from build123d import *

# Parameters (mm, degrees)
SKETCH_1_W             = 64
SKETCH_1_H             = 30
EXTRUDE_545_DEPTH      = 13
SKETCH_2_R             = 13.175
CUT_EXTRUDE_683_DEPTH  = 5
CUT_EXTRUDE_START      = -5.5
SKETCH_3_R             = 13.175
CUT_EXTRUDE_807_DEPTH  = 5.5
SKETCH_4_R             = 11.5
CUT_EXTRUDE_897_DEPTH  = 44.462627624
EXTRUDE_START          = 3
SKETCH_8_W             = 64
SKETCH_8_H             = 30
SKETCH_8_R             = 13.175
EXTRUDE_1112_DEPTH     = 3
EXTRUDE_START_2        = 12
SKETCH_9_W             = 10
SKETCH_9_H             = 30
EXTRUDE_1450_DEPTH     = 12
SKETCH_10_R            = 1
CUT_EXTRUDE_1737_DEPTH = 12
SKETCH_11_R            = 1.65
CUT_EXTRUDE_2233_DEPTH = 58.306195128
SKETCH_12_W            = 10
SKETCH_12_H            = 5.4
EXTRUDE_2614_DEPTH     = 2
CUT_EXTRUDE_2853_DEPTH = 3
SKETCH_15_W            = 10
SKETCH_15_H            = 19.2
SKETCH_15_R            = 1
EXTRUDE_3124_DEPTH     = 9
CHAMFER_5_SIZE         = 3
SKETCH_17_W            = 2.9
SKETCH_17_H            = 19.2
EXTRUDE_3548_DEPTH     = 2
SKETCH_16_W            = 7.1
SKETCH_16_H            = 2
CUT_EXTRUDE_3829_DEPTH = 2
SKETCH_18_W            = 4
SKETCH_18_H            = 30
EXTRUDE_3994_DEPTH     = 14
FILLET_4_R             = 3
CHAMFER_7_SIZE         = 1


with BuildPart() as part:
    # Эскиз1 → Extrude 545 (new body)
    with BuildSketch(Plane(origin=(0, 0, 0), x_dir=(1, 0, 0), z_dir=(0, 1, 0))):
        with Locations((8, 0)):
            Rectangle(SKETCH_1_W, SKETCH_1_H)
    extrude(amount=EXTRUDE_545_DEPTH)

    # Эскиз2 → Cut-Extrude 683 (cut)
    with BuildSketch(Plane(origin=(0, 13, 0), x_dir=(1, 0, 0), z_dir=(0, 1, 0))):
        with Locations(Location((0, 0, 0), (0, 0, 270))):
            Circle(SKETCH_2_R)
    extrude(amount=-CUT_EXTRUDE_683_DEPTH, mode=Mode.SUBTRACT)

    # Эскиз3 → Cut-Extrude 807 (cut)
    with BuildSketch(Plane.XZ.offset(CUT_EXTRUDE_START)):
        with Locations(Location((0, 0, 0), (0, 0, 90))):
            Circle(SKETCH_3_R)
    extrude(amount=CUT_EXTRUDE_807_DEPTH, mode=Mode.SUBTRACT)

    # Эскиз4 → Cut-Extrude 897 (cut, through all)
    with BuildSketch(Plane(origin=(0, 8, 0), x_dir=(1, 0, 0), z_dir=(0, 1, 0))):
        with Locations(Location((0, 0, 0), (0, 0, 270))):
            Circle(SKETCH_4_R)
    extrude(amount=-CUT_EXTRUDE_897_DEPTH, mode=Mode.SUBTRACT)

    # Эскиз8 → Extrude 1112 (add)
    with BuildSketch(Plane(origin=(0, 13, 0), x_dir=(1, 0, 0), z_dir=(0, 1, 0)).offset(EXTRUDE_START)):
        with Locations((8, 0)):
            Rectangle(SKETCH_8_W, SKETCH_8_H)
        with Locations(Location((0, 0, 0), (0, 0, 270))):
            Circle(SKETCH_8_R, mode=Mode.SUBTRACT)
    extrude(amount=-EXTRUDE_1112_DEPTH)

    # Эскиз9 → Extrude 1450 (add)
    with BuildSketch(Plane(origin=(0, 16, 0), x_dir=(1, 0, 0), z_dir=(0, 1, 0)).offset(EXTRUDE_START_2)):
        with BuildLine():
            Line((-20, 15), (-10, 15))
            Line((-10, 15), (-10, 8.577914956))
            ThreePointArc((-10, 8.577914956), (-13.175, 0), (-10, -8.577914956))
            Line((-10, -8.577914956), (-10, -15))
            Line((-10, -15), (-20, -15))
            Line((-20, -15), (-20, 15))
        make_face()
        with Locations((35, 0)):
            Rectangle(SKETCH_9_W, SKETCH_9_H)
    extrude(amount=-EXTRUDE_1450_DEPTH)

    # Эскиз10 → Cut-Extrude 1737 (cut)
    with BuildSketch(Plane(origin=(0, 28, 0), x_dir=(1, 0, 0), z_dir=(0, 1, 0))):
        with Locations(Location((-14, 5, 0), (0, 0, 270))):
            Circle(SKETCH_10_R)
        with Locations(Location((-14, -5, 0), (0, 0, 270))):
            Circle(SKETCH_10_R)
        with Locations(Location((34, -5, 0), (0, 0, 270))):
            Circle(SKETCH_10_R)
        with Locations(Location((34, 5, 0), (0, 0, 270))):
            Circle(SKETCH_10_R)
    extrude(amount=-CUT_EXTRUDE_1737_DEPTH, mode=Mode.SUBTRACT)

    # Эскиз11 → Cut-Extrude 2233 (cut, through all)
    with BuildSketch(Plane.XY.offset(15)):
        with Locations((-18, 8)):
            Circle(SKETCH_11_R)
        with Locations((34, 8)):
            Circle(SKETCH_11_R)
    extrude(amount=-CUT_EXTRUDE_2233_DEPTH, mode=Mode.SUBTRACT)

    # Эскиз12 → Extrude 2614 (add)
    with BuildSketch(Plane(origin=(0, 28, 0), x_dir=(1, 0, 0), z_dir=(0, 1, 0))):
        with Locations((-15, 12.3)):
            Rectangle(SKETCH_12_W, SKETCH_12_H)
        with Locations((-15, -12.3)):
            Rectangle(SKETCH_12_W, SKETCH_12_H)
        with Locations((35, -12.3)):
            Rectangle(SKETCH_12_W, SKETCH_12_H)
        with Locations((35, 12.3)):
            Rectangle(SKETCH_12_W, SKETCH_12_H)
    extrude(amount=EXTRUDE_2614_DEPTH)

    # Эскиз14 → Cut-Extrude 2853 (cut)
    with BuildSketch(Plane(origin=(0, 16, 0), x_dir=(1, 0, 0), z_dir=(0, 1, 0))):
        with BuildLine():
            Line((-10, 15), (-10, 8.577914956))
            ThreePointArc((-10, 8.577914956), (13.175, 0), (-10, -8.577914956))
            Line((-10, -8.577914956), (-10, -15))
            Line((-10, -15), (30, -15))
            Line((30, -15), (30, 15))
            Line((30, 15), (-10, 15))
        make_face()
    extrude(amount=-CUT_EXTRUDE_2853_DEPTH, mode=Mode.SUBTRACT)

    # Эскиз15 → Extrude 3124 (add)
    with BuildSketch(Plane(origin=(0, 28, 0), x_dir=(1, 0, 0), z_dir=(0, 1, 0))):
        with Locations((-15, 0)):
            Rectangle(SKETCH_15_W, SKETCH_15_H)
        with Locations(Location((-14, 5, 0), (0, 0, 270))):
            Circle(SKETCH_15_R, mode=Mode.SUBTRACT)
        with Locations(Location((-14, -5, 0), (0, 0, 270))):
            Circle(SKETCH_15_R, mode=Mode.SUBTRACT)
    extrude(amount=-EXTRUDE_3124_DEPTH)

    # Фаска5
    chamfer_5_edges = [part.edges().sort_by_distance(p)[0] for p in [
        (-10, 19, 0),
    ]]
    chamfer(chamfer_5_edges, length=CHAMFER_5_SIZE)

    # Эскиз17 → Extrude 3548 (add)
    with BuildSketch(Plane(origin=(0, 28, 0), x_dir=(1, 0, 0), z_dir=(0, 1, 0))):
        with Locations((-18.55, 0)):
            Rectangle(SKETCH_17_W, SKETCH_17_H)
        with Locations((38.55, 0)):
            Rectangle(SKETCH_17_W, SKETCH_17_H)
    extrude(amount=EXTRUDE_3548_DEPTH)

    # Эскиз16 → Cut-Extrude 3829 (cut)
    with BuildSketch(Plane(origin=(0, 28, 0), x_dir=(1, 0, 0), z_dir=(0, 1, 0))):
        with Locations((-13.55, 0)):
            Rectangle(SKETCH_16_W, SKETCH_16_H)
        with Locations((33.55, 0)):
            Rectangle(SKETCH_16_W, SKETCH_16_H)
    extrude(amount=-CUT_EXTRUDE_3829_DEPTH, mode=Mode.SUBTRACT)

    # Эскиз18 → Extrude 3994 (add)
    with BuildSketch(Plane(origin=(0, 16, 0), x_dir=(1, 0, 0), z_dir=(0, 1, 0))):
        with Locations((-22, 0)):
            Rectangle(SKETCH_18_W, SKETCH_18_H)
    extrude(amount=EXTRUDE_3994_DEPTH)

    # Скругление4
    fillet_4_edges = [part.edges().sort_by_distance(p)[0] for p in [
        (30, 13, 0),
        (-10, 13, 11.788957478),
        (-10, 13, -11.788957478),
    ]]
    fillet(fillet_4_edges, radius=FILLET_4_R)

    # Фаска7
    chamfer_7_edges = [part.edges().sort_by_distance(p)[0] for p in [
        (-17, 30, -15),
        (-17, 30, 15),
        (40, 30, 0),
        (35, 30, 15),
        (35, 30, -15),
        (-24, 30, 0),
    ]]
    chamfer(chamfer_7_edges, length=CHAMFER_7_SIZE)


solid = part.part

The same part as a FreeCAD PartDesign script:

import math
import FreeCAD as App
import Part
import Sketcher
from FreeCAD import Vector


def edges_at(feature, points):
    """Names of the edges that pass closest to the given points."""
    edges = feature.Shape.Edges
    near = lambda p: min(range(len(edges)), key=lambda i: edges[i].distToShape(Part.Vertex(*p))[0])
    return sorted({f"Edge{near(p) + 1}" for p in points})


def add_polygon(sketch, points):
    """Adds a closed chain of lines whose ends are joined by coincident constraints."""
    first, n = sketch.GeometryCount, len(points)
    for a, b in zip(points, points[1:] + points[:1]):
        sketch.addGeometry(Part.LineSegment(App.Vector(*a, 0), App.Vector(*b, 0)), False)
    for i in range(n):
        sketch.addConstraint(Sketcher.Constraint("Coincident", first + i, 2, first + (i + 1) % n, 1))

doc = App.newDocument("Part")
body = doc.addObject("PartDesign::Body", "Body")

# Sketch on XZ plane
sketch1 = body.newObject("Sketcher::SketchObject", "Sketch")
sketch1.AttachmentSupport = (doc.getObject("XZ_Plane"), [""])
sketch1.MapMode = "FlatFace"
add_polygon(sketch1, [(-24, -15), (-24, 15), (40, 15), (40, -15)])  # lines 0-3
sketch1.addConstraint([
    Sketcher.Constraint("Vertical", 0),
    Sketcher.Constraint("Horizontal", 1),
    Sketcher.Constraint("Vertical", 2),
    Sketcher.Constraint("Horizontal", 3),
    Sketcher.Constraint("DistanceX", 1, 1, 1, 2, 64.0),
    Sketcher.Constraint("DistanceY", 0, 1, 0, 2, 30.0),
    Sketcher.Constraint("DistanceX", 0, 2, -1, 1, 24.0),
    Sketcher.Constraint("DistanceY", -1, 1, 0, 2, 15.0),
])
pad1 = body.newObject("PartDesign::Pad", "Pad")
pad1.Profile = sketch1
pad1.Length = 13
pad1.Reversed = True

# Sketch on XZ plane
sketch2 = body.newObject("Sketcher::SketchObject", "Sketch001")
sketch2.AttachmentSupport = (doc.getObject("XZ_Plane"), [""])
sketch2.MapMode = "FlatFace"
sketch2.AttachmentOffset = App.Placement(Vector(0, 0, -13), App.Rotation())
sketch2.addGeometry(Part.Circle(Vector(0, 0, 0), Vector(0, 0, 1), 13.175), False)
sketch2.addConstraint([
    Sketcher.Constraint("Coincident", 0, 3, -1, 1),
    Sketcher.Constraint("Diameter", 0, 26.35),
])
pocket1 = body.newObject("PartDesign::Pocket", "Pocket")
pocket1.Profile = sketch2
pocket1.Length = 5
pocket1.Reversed = True

# Sketch on XZ plane
sketch3 = body.newObject("Sketcher::SketchObject", "Sketch002")
sketch3.AttachmentSupport = (doc.getObject("XZ_Plane"), [""])
sketch3.MapMode = "FlatFace"
sketch3.AttachmentOffset = App.Placement(Vector(0, 0, -5.5), App.Rotation())
sketch3.addGeometry(Part.Circle(Vector(0, 0, 0), Vector(0, 0, 1), 13.175), False)
sketch3.addConstraint([
    Sketcher.Constraint("Coincident", 0, 3, -1, 1),
    Sketcher.Constraint("Diameter", 0, 26.35),
])
pocket2 = body.newObject("PartDesign::Pocket", "Pocket001")
pocket2.Profile = sketch3
pocket2.Length = 5.5
pocket2.Reversed = True

# Sketch on XZ plane
sketch4 = body.newObject("Sketcher::SketchObject", "Sketch003")
sketch4.AttachmentSupport = (doc.getObject("XZ_Plane"), [""])
sketch4.MapMode = "FlatFace"
sketch4.AttachmentOffset = App.Placement(Vector(0, 0, -8), App.Rotation())
sketch4.addGeometry(Part.Circle(Vector(0, 0, 0), Vector(0, 0, 1), 11.5), False)
sketch4.addConstraint([
    Sketcher.Constraint("Coincident", 0, 3, -1, 1),
    Sketcher.Constraint("Diameter", 0, 23.0),
])
pocket3 = body.newObject("PartDesign::Pocket", "Pocket002")
pocket3.Profile = sketch4
pocket3.Type = "ThroughAll"
pocket3.Reversed = True

# Sketch on XZ plane
sketch5 = body.newObject("Sketcher::SketchObject", "Sketch004")
sketch5.AttachmentSupport = (doc.getObject("XZ_Plane"), [""])
sketch5.MapMode = "FlatFace"
sketch5.AttachmentOffset = App.Placement(Vector(0, 0, -16), App.Rotation())
add_polygon(sketch5, [(-24, -15), (-24, 15), (40, 15), (40, -15)])  # lines 0-3
sketch5.addGeometry(Part.Circle(Vector(0, 0, 0), Vector(0, 0, 1), 13.175), False)  # 4
sketch5.addConstraint([
    Sketcher.Constraint("Vertical", 0),
    Sketcher.Constraint("Horizontal", 1),
    Sketcher.Constraint("Vertical", 2),
    Sketcher.Constraint("Horizontal", 3),
    Sketcher.Constraint("Coincident", 4, 3, -1, 1),
    Sketcher.Constraint("Diameter", 4, 26.35),
    Sketcher.Constraint("DistanceX", 1, 1, 1, 2, 64.0),
    Sketcher.Constraint("DistanceY", 0, 1, 0, 2, 30.0),
    Sketcher.Constraint("DistanceX", 0, 2, -1, 1, 24.0),
    Sketcher.Constraint("DistanceY", -1, 1, 0, 2, 15.0),
])
pad2 = body.newObject("PartDesign::Pad", "Pad001")
pad2.Profile = sketch5
pad2.Length = 3

# Sketch on XZ plane
sketch6 = body.newObject("Sketcher::SketchObject", "Sketch005")
sketch6.AttachmentSupport = (doc.getObject("XZ_Plane"), [""])
sketch6.MapMode = "FlatFace"
sketch6.AttachmentOffset = App.Placement(Vector(0, 0, -28), App.Rotation())
sketch6.addGeometry(Part.LineSegment(Vector(-10, -15, 0), Vector(-20, -15, 0)), False)  # 0
sketch6.addGeometry(Part.LineSegment(Vector(-20, -15, 0), Vector(-20, 15, 0)), False)  # 1
sketch6.addGeometry(Part.LineSegment(Vector(-20, 15, 0), Vector(-10, 15, 0)), False)  # 2
sketch6.addGeometry(Part.LineSegment(Vector(-10, 15, 0), Vector(-10, 8.577915, 0)), False)  # 3
sketch6.addGeometry(Part.ArcOfCircle(Part.Circle(Vector(0, 0, 0), Vector(0, 0, 1), 13.175), math.radians(139.377288), math.radians(220.622712)), False)  # 4
sketch6.addGeometry(Part.LineSegment(Vector(-10, -8.577915, 0), Vector(-10, -15, 0)), False)  # 5
add_polygon(sketch6, [(30, -15), (30, 15), (40, 15), (40, -15)])  # lines 6-9
sketch6.addConstraint([
    Sketcher.Constraint("Coincident", 0, 2, 1, 1),
    Sketcher.Constraint("Coincident", 1, 2, 2, 1),
    Sketcher.Constraint("Coincident", 2, 2, 3, 1),
    Sketcher.Constraint("Coincident", 3, 2, 4, 1),
    Sketcher.Constraint("Coincident", 4, 2, 5, 1),
    Sketcher.Constraint("Coincident", 5, 2, 0, 1),
    Sketcher.Constraint("Horizontal", 0),
    Sketcher.Constraint("Vertical", 1),
    Sketcher.Constraint("Horizontal", 2),
    Sketcher.Constraint("Vertical", 3),
    Sketcher.Constraint("Vertical", 5),
    Sketcher.Constraint("Vertical", 6),
    Sketcher.Constraint("Horizontal", 7),
    Sketcher.Constraint("Vertical", 8),
    Sketcher.Constraint("Horizontal", 9),
    Sketcher.Constraint("Coincident", 4, 3, -1, 1),
    Sketcher.Constraint("Symmetric", 2, 2, 5, 2, -1),
    Sketcher.Constraint("Horizontal", 2, 2, 6, 2),
    Sketcher.Constraint("Horizontal", 5, 2, 8, 2),
    Sketcher.Constraint("Equal", 2, 7),
    Sketcher.Constraint("DistanceX", 0, 2, 0, 1, 10.0),
    Sketcher.Constraint("DistanceY", 1, 1, 1, 2, 30.0),
    Sketcher.Constraint("DistanceX", 0, 2, -1, 1, 20.0),
    Sketcher.Constraint("DistanceX", -1, 1, 6, 2, 30.0),
    Sketcher.Constraint("Radius", 4, 13.175),
])
pad3 = body.newObject("PartDesign::Pad", "Pad002")
pad3.Profile = sketch6
pad3.Length = 12

# Sketch on XZ plane
sketch7 = body.newObject("Sketcher::SketchObject", "Sketch006")
sketch7.AttachmentSupport = (doc.getObject("XZ_Plane"), [""])
sketch7.MapMode = "FlatFace"
sketch7.AttachmentOffset = App.Placement(Vector(0, 0, -28), App.Rotation())
sketch7.addGeometry([
    Part.Circle(Vector(-14, -5, 0), Vector(0, 0, 1), 1),
    Part.Circle(Vector(-14, 5, 0), Vector(0, 0, 1), 1),
    Part.Circle(Vector(34, 5, 0), Vector(0, 0, 1), 1),
    Part.Circle(Vector(34, -5, 0), Vector(0, 0, 1), 1),
], False)
sketch7.addConstraint([
    Sketcher.Constraint("Equal", 0, 1),
    Sketcher.Constraint("Equal", 1, 2),
    Sketcher.Constraint("Equal", 2, 3),
    Sketcher.Constraint("Symmetric", 0, 3, 1, 3, -1),
    Sketcher.Constraint("Symmetric", 2, 3, 3, 3, -1),
    Sketcher.Constraint("Horizontal", 1, 3, 2, 3),
    Sketcher.Constraint("Diameter", 0, 2.0),
    Sketcher.Constraint("DistanceX", 0, 3, -1, 1, 14.0),
    Sketcher.Constraint("DistanceY", 0, 3, -1, 1, 5.0),
    Sketcher.Constraint("DistanceX", -1, 1, 2, 3, 34.0),
])
pocket4 = body.newObject("PartDesign::Pocket", "Pocket003")
pocket4.Profile = sketch7
pocket4.Length = 12
pocket4.Reversed = True

# Sketch on XY plane
sketch8 = body.newObject("Sketcher::SketchObject", "Sketch007")
sketch8.AttachmentSupport = (doc.getObject("XY_Plane"), [""])
sketch8.MapMode = "FlatFace"
sketch8.AttachmentOffset = App.Placement(Vector(0, 0, 15), App.Rotation())
sketch8.addGeometry([
    Part.Circle(Vector(-18, 8, 0), Vector(0, 0, 1), 1.65),
    Part.Circle(Vector(34, 8, 0), Vector(0, 0, 1), 1.65),
], False)
sketch8.addConstraint([
    Sketcher.Constraint("Equal", 0, 1),
    Sketcher.Constraint("Horizontal", 0, 3, 1, 3),
    Sketcher.Constraint("Diameter", 0, 3.3),
    Sketcher.Constraint("DistanceX", 0, 3, -1, 1, 18.0),
    Sketcher.Constraint("DistanceY", -1, 1, 0, 3, 8.0),
    Sketcher.Constraint("DistanceX", -1, 1, 1, 3, 34.0),
])
pocket5 = body.newObject("PartDesign::Pocket", "Pocket004")
pocket5.Profile = sketch8
pocket5.Type = "ThroughAll"

# Sketch on XZ plane
sketch9 = body.newObject("Sketcher::SketchObject", "Sketch008")
sketch9.AttachmentSupport = (doc.getObject("XZ_Plane"), [""])
sketch9.MapMode = "FlatFace"
sketch9.AttachmentOffset = App.Placement(Vector(0, 0, -28), App.Rotation())
add_polygon(sketch9, [(-20, -15), (-20, -9.6), (-10, -9.6), (-10, -15)])  # lines 0-3
add_polygon(sketch9, [(-20, 9.6), (-20, 15), (-10, 15), (-10, 9.6)])  # lines 4-7
add_polygon(sketch9, [(30, 9.6), (30, 15), (40, 15), (40, 9.6)])  # lines 8-11
add_polygon(sketch9, [(30, -15), (30, -9.6), (40, -9.6), (40, -15)])  # lines 12-15
sketch9.addConstraint([
    Sketcher.Constraint("Vertical", 0),
    Sketcher.Constraint("Horizontal", 1),
    Sketcher.Constraint("Vertical", 2),
    Sketcher.Constraint("Horizontal", 3),
    Sketcher.Constraint("Vertical", 4),
    Sketcher.Constraint("Horizontal", 5),
    Sketcher.Constraint("Vertical", 6),
    Sketcher.Constraint("Horizontal", 7),
    Sketcher.Constraint("Vertical", 8),
    Sketcher.Constraint("Horizontal", 9),
    Sketcher.Constraint("Vertical", 10),
    Sketcher.Constraint("Horizontal", 11),
    Sketcher.Constraint("Vertical", 12),
    Sketcher.Constraint("Horizontal", 13),
    Sketcher.Constraint("Vertical", 14),
    Sketcher.Constraint("Horizontal", 15),
    Sketcher.Constraint("Symmetric", 3, 2, 4, 2, -1),
    Sketcher.Constraint("Symmetric", 1, 2, 6, 2, -1),
    Sketcher.Constraint("Symmetric", 11, 2, 12, 2, -1),
    Sketcher.Constraint("Symmetric", 9, 2, 14, 2, -1),
    Sketcher.Constraint("Horizontal", 5, 2, 8, 2),
    Sketcher.Constraint("Horizontal", 7, 2, 10, 2),
    Sketcher.Constraint("Equal", 7, 9),
    Sketcher.Constraint("DistanceX", 1, 1, 1, 2, 10.0),
    Sketcher.Constraint("DistanceY", 0, 1, 0, 2, 5.4),
    Sketcher.Constraint("DistanceX", 0, 2, -1, 1, 20.0),
    Sketcher.Constraint("DistanceY", 2, 2, -1, 1, 15.0),
    Sketcher.Constraint("DistanceX", -1, 1, 8, 2, 30.0),
])
pad4 = body.newObject("PartDesign::Pad", "Pad003")
pad4.Profile = sketch9
pad4.Length = 2
pad4.Reversed = True

# Sketch on XZ plane
sketch10 = body.newObject("Sketcher::SketchObject", "Sketch009")
sketch10.AttachmentSupport = (doc.getObject("XZ_Plane"), [""])
sketch10.MapMode = "FlatFace"
sketch10.AttachmentOffset = App.Placement(Vector(0, 0, -16), App.Rotation())
sketch10.addGeometry([
    Part.LineSegment(Vector(-10, -15, 0), Vector(-10, -8.577915, 0)),  # 0
    Part.ArcOfCircle(Part.Circle(Vector(0, 0, 0), Vector(0, 0, 1), 13.175), math.radians(-139.377288), math.radians(139.377288)),  # 1
    Part.LineSegment(Vector(-10, 8.577915, 0), Vector(-10, 15, 0)),  # 2
    Part.LineSegment(Vector(-10, 15, 0), Vector(30, 15, 0)),  # 3
    Part.LineSegment(Vector(30, 15, 0), Vector(30, -15, 0)),  # 4
    Part.LineSegment(Vector(30, -15, 0), Vector(-10, -15, 0)),  # 5
], False)
sketch10.addConstraint([
    Sketcher.Constraint("Coincident", 0, 2, 1, 1),
    Sketcher.Constraint("Coincident", 1, 2, 2, 1),
    Sketcher.Constraint("Coincident", 2, 2, 3, 1),
    Sketcher.Constraint("Coincident", 3, 2, 4, 1),
    Sketcher.Constraint("Coincident", 4, 2, 5, 1),
    Sketcher.Constraint("Coincident", 5, 2, 0, 1),
    Sketcher.Constraint("Vertical", 0),
    Sketcher.Constraint("Vertical", 2),
    Sketcher.Constraint("Horizontal", 3),
    Sketcher.Constraint("Vertical", 4),
    Sketcher.Constraint("Horizontal", 5),
    Sketcher.Constraint("Coincident", 1, 3, -1, 1),
    Sketcher.Constraint("Symmetric", 2, 2, 5, 2, -1),
    Sketcher.Constraint("DistanceX", 3, 1, 3, 2, 40.0),
    Sketcher.Constraint("DistanceY", 4, 2, 4, 1, 30.0),
    Sketcher.Constraint("DistanceX", 0, 2, -1, 1, 10.0),
    Sketcher.Constraint("Radius", 1, 13.175),
])
pocket6 = body.newObject("PartDesign::Pocket", "Pocket005")
pocket6.Profile = sketch10
pocket6.Length = 3
pocket6.Reversed = True

# Sketch on XZ plane
sketch11 = body.newObject("Sketcher::SketchObject", "Sketch010")
sketch11.AttachmentSupport = (doc.getObject("XZ_Plane"), [""])
sketch11.MapMode = "FlatFace"
sketch11.AttachmentOffset = App.Placement(Vector(0, 0, -28), App.Rotation())
add_polygon(sketch11, [(-20, -9.6), (-20, 9.6), (-10, 9.6), (-10, -9.6)])  # lines 0-3
sketch11.addGeometry(Part.Circle(Vector(-14, 5, 0), Vector(0, 0, 1), 1), False)  # 4
sketch11.addGeometry(Part.Circle(Vector(-14, -5, 0), Vector(0, 0, 1), 1), False)  # 5
sketch11.addConstraint([
    Sketcher.Constraint("Vertical", 0),
    Sketcher.Constraint("Horizontal", 1),
    Sketcher.Constraint("Vertical", 2),
    Sketcher.Constraint("Horizontal", 3),
    Sketcher.Constraint("Equal", 4, 5),
    Sketcher.Constraint("Symmetric", 4, 3, 5, 3, -1),
    Sketcher.Constraint("Diameter", 4, 2.0),
    Sketcher.Constraint("DistanceX", 1, 1, 1, 2, 10.0),
    Sketcher.Constraint("DistanceY", 0, 1, 0, 2, 19.2),
    Sketcher.Constraint("DistanceX", 4, 3, -1, 1, 14.0),
    Sketcher.Constraint("DistanceY", -1, 1, 4, 3, 5.0),
    Sketcher.Constraint("DistanceX", 0, 2, -1, 1, 20.0),
    Sketcher.Constraint("DistanceY", -1, 1, 0, 2, 9.6),
])
pad5 = body.newObject("PartDesign::Pad", "Pad004")
pad5.Profile = sketch11
pad5.Length = 9
doc.recompute()

chamfer = body.newObject("PartDesign::Chamfer", "Chamfer")
chamfer.Base = (pad5, edges_at(pad5, [(-10, 19, 0)]))
chamfer.Size = 3

# Sketch on XZ plane
sketch12 = body.newObject("Sketcher::SketchObject", "Sketch011")
sketch12.AttachmentSupport = (doc.getObject("XZ_Plane"), [""])
sketch12.MapMode = "FlatFace"
sketch12.AttachmentOffset = App.Placement(Vector(0, 0, -28), App.Rotation())
add_polygon(sketch12, [(-20, -9.6), (-20, 9.6), (-17.1, 9.6), (-17.1, -9.6)])  # lines 0-3
add_polygon(sketch12, [(37.1, -9.6), (37.1, 9.6), (40, 9.6), (40, -9.6)])  # lines 4-7
sketch12.addConstraint([
    Sketcher.Constraint("Vertical", 0),
    Sketcher.Constraint("Horizontal", 1),
    Sketcher.Constraint("Vertical", 2),
    Sketcher.Constraint("Horizontal", 3),
    Sketcher.Constraint("Vertical", 4),
    Sketcher.Constraint("Horizontal", 5),
    Sketcher.Constraint("Vertical", 6),
    Sketcher.Constraint("Horizontal", 7),
    Sketcher.Constraint("Horizontal", 1, 2, 4, 2),
    Sketcher.Constraint("Horizontal", 3, 2, 6, 2),
    Sketcher.Constraint("Equal", 3, 5),
    Sketcher.Constraint("DistanceX", 1, 1, 1, 2, 2.9),
    Sketcher.Constraint("DistanceY", 0, 1, 0, 2, 19.2),
    Sketcher.Constraint("DistanceX", 0, 2, -1, 1, 20.0),
    Sketcher.Constraint("DistanceX", -1, 1, 5, 2, 40.0),
    Sketcher.Constraint("DistanceY", -1, 1, 0, 2, 9.6),
])
pad6 = body.newObject("PartDesign::Pad", "Pad005")
pad6.Profile = sketch12
pad6.Length = 2
pad6.Reversed = True

# Sketch on XZ plane
sketch13 = body.newObject("Sketcher::SketchObject", "Sketch012")
sketch13.AttachmentSupport = (doc.getObject("XZ_Plane"), [""])
sketch13.MapMode = "FlatFace"
sketch13.AttachmentOffset = App.Placement(Vector(0, 0, -28), App.Rotation())
add_polygon(sketch13, [(-17.1, -1), (-17.1, 1), (-10, 1), (-10, -1)])  # lines 0-3
add_polygon(sketch13, [(30, -1), (30, 1), (37.1, 1), (37.1, -1)])  # lines 4-7
sketch13.addConstraint([
    Sketcher.Constraint("Vertical", 0),
    Sketcher.Constraint("Horizontal", 1),
    Sketcher.Constraint("Vertical", 2),
    Sketcher.Constraint("Horizontal", 3),
    Sketcher.Constraint("Vertical", 4),
    Sketcher.Constraint("Horizontal", 5),
    Sketcher.Constraint("Vertical", 6),
    Sketcher.Constraint("Horizontal", 7),
    Sketcher.Constraint("Horizontal", 1, 2, 4, 2),
    Sketcher.Constraint("Horizontal", 3, 2, 6, 2),
    Sketcher.Constraint("Equal", 3, 5),
    Sketcher.Constraint("DistanceY", 0, 1, 0, 2, 2.0),
    Sketcher.Constraint("DistanceX", 1, 1, 1, 2, 7.1),
    Sketcher.Constraint("DistanceY", -1, 1, 0, 2, 1.0),
    Sketcher.Constraint("DistanceX", 1, 2, -1, 1, 10.0),
    Sketcher.Constraint("DistanceX", -1, 1, 4, 2, 30.0),
])
pocket7 = body.newObject("PartDesign::Pocket", "Pocket006")
pocket7.Profile = sketch13
pocket7.Length = 2
pocket7.Reversed = True

# Sketch on XZ plane
sketch14 = body.newObject("Sketcher::SketchObject", "Sketch013")
sketch14.AttachmentSupport = (doc.getObject("XZ_Plane"), [""])
sketch14.MapMode = "FlatFace"
sketch14.AttachmentOffset = App.Placement(Vector(0, 0, -16), App.Rotation())
add_polygon(sketch14, [(-24, -15), (-24, 15), (-20, 15), (-20, -15)])  # lines 0-3
sketch14.addConstraint([
    Sketcher.Constraint("Vertical", 0),
    Sketcher.Constraint("Horizontal", 1),
    Sketcher.Constraint("Vertical", 2),
    Sketcher.Constraint("Horizontal", 3),
    Sketcher.Constraint("DistanceX", 1, 1, 1, 2, 4.0),
    Sketcher.Constraint("DistanceY", 0, 1, 0, 2, 30.0),
    Sketcher.Constraint("DistanceX", 0, 2, -1, 1, 24.0),
    Sketcher.Constraint("DistanceY", -1, 1, 0, 2, 15.0),
])
pad7 = body.newObject("PartDesign::Pad", "Pad006")
pad7.Profile = sketch14
pad7.Length = 14
pad7.Reversed = True
doc.recompute()

fillet = body.newObject("PartDesign::Fillet", "Fillet")
fillet.Base = (pad7, edges_at(pad7, [(30, 13, 0), (-10, 13, 11.789), (-10, 13, -11.789)]))
fillet.Radius = 3
doc.recompute()

chamfer2 = body.newObject("PartDesign::Chamfer", "Chamfer001")
chamfer2.Base = (fillet, edges_at(fillet, [
    (-17, 30, -15),
    (-17, 30, 15),
    (40, 30, 0),
    (35, 30, 15),
    (35, 30, -15),
    (-24, 30, 0),
]))
chamfer2.Size = 1

doc.recompute()
